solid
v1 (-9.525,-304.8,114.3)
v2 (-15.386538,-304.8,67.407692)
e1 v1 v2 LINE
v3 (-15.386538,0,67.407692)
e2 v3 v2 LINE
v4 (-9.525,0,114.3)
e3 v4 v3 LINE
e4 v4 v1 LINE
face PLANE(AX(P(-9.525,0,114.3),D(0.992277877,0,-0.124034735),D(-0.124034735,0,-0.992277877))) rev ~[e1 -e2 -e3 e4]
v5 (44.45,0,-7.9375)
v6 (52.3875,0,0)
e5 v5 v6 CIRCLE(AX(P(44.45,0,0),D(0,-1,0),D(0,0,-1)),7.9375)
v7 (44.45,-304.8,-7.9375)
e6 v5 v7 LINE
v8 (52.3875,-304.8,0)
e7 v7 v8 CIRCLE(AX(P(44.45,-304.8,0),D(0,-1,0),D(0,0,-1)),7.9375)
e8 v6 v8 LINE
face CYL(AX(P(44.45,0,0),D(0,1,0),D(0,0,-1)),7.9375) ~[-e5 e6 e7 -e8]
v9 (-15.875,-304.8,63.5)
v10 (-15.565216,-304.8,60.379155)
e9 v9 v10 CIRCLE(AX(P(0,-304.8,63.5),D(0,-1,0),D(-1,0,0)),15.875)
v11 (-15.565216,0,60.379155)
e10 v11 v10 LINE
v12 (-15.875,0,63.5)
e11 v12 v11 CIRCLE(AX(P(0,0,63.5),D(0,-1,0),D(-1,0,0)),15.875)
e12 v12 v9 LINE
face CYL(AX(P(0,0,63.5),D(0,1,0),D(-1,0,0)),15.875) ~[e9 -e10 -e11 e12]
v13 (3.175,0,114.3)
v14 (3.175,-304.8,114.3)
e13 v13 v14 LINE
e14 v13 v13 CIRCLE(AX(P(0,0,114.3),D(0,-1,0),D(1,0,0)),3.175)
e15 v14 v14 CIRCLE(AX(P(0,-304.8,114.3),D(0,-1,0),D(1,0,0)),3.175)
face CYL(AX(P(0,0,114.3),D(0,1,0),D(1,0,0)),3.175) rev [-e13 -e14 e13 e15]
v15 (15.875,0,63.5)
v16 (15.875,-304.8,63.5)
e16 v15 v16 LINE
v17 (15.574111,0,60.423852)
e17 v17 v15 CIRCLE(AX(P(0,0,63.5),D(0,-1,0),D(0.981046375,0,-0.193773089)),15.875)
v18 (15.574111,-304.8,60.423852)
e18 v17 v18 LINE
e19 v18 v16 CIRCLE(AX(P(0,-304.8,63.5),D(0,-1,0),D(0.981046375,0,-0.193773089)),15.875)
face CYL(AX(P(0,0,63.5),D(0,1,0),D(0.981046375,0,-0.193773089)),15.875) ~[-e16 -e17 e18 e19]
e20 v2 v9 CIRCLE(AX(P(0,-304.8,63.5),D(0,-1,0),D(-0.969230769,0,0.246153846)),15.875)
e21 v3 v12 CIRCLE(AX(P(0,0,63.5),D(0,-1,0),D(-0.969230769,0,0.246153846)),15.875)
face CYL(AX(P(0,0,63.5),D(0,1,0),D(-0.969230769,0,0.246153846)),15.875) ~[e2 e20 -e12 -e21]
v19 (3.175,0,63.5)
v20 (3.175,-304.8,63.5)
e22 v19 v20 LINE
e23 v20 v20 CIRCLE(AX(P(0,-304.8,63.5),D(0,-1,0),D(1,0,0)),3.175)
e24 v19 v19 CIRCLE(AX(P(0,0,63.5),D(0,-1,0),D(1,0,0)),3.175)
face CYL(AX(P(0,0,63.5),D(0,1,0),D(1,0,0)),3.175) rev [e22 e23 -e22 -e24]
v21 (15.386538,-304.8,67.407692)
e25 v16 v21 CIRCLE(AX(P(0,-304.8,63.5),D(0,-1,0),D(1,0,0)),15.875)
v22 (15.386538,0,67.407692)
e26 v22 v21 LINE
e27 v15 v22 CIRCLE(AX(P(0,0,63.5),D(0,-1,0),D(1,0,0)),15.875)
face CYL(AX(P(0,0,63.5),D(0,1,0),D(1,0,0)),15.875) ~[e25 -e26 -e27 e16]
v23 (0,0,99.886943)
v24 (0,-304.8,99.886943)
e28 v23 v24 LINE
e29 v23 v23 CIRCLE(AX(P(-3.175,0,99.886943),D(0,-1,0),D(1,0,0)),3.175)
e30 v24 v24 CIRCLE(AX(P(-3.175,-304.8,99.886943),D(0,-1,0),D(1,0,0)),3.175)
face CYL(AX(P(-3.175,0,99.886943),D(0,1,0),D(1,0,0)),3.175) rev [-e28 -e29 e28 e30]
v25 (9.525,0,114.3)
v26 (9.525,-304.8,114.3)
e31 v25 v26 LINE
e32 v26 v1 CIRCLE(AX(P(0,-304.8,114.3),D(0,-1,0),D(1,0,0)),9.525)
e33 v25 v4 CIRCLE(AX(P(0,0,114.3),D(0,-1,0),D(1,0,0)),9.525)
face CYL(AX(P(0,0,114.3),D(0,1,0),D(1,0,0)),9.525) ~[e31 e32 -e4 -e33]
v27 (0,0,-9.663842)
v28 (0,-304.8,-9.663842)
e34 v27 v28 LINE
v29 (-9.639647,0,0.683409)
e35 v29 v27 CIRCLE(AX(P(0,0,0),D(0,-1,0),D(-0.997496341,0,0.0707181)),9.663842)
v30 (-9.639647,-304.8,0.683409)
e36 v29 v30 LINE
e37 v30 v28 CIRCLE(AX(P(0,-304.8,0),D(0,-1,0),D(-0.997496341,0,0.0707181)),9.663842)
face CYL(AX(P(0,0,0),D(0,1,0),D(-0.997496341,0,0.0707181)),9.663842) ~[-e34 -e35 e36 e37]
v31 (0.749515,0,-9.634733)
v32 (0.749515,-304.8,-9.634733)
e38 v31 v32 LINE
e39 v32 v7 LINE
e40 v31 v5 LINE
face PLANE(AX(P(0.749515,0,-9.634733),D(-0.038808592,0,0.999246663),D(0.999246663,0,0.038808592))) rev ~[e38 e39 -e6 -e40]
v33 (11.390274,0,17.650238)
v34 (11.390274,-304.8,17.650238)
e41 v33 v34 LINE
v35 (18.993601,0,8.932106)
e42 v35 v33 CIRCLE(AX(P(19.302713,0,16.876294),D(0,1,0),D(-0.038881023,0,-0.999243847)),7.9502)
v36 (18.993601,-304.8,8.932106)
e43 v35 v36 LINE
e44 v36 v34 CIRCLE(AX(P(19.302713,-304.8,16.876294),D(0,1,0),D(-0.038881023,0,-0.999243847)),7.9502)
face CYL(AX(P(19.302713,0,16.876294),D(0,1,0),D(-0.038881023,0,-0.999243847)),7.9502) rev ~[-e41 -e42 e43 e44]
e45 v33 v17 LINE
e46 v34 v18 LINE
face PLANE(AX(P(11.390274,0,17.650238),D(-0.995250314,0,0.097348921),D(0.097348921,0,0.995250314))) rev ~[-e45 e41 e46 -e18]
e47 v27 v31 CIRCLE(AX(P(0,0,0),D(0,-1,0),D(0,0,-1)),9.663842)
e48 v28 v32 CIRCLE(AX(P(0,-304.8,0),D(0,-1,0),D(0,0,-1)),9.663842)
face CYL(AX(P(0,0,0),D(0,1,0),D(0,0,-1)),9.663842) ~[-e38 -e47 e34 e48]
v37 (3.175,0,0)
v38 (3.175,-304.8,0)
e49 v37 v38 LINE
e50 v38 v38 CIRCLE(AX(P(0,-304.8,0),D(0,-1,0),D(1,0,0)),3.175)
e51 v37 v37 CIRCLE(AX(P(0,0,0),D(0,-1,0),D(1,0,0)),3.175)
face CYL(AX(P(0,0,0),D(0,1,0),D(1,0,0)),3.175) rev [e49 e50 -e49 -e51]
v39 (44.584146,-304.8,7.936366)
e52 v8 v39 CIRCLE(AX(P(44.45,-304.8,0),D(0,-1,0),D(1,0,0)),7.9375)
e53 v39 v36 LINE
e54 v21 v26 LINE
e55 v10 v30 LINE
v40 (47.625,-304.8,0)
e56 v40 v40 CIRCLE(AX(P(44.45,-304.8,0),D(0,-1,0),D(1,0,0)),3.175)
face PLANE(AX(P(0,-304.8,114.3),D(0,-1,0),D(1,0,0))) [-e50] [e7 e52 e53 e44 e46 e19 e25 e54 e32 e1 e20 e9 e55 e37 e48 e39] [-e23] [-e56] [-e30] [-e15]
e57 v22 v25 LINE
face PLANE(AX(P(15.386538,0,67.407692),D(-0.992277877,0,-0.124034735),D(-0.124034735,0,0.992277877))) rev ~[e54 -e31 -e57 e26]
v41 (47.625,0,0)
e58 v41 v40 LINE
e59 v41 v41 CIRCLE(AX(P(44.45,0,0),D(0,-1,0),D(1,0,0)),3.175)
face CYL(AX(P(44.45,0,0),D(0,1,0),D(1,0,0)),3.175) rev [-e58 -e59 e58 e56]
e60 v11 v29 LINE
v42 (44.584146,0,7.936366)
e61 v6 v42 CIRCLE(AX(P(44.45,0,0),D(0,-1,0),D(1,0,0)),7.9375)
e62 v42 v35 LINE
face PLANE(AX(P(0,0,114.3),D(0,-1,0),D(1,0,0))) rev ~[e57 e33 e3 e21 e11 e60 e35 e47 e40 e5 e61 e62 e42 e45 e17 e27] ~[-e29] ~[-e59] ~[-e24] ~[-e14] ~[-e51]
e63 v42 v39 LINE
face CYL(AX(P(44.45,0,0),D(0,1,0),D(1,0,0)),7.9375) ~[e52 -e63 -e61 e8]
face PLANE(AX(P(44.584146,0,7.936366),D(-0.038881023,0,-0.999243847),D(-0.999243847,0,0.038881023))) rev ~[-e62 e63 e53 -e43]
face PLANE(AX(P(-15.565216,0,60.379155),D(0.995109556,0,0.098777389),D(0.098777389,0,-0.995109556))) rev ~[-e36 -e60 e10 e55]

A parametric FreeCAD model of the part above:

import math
import FreeCAD as App
import Part
import Sketcher
from FreeCAD import Vector
Q = App.Units.Quantity

doc = App.newDocument("Part")
params = doc.addObject("Spreadsheet::Sheet", "Params")
for row, (alias, value) in enumerate([
    ("sketch1_diameter", "0.25 in"),
    ("sketch1_radius", "0.375 in"),
    ("sketch1_radius2", "0.625 in"),
    ("sketch1_radius3", "0.3125 in"),
    ("sketch1_radius4", "0.313 in"),
    ("pad1_length", "12 in"),
], start=1):
    params.set(f"A{row}", alias)
    params.set(f"B{row}", "=" + value)
    params.setAlias(f"B{row}", alias)

body = doc.addObject("PartDesign::Body", "Body")

sketch1 = body.newObject("Sketcher::SketchObject", "Sketch")
sketch1.AttachmentSupport = (doc.getObject("XZ_Plane"), [""])
sketch1.MapMode = "FlatFace"
sketch1.addGeometry([
    Part.ArcOfCircle(Part.Circle(Vector(0, 114.3, 0), Vector(0, 0, 1), 9.525), math.radians(0), math.radians(180)),
    Part.LineSegment(Vector(-9.525, 114.3, 0), Vector(-15.386538, 67.407692, 0)),
    Part.ArcOfCircle(Part.Circle(Vector(0, 63.5, 0), Vector(0, 0, 1), 15.875), math.radians(165.749967), math.radians(180)),
    Part.ArcOfCircle(Part.Circle(Vector(0, 63.5, 0), Vector(0, 0, 1), 15.875), math.radians(180), math.radians(191.337543)),
    Part.LineSegment(Vector(-15.565216, 60.379155, 0), Vector(-9.639647, 0.683409, 0)),
    Part.ArcOfCircle(Part.Circle(Vector(0, 0, 0), Vector(0, 0, 1), 9.663842), math.radians(175.944766), math.radians(270)),
    Part.ArcOfCircle(Part.Circle(Vector(0, 0, 0), Vector(0, 0, 1), 9.663842), math.radians(-90), math.radians(-85.551746)),
    Part.LineSegment(Vector(0.749515, -9.634733, 0), Vector(44.45, -7.9375, 0)),
    Part.ArcOfCircle(Part.Circle(Vector(44.45, 0, 0), Vector(0, 0, 1), 7.9375), math.radians(-90), math.radians(0)),
    Part.ArcOfCircle(Part.Circle(Vector(44.45, 0, 0), Vector(0, 0, 1), 7.9375), math.radians(0), math.radians(89.031642)),
    Part.LineSegment(Vector(44.584146, 7.936366, 0), Vector(18.993601, 8.932106, 0)),
    Part.ArcOfCircle(Part.Circle(Vector(19.302713, 16.876294, 0), Vector(0, 0, 1), 7.9502), math.radians(174.41347), math.radians(267.77172)),
    Part.LineSegment(Vector(11.390274, 17.650238, 0), Vector(15.574111, 60.423852, 0)),
    Part.ArcOfCircle(Part.Circle(Vector(0, 63.5, 0), Vector(0, 0, 1), 15.875), math.radians(-11.17306), math.radians(0)),
    Part.ArcOfCircle(Part.Circle(Vector(0, 63.5, 0), Vector(0, 0, 1), 15.875), math.radians(0), math.radians(14.250033)),
    Part.LineSegment(Vector(15.386538, 67.407692, 0), Vector(9.525, 114.3, 0)),
    Part.Circle(Vector(0, 0, 0), Vector(0, 0, 1), 3.175),
    Part.Circle(Vector(44.45, 0, 0), Vector(0, 0, 1), 3.175),
    Part.Circle(Vector(0, 63.5, 0), Vector(0, 0, 1), 3.175),
    Part.Circle(Vector(-3.175, 99.886943, 0), Vector(0, 0, 1), 3.175),
    Part.Circle(Vector(0, 114.3, 0), Vector(0, 0, 1), 3.175),
], False)
sketch1.addConstraint([
    Sketcher.Constraint("Coincident", 0, 2, 1, 1),
    Sketcher.Constraint("Coincident", 1, 2, 2, 1),
    Sketcher.Constraint("Tangent", 2, 2, 3, 1),
    Sketcher.Constraint("Coincident", 3, 2, 4, 1),
    Sketcher.Constraint("Coincident", 4, 2, 5, 1),
    Sketcher.Constraint("Tangent", 5, 2, 6, 1),
    Sketcher.Constraint("Coincident", 6, 2, 7, 1),
    Sketcher.Constraint("Coincident", 7, 2, 8, 1),
    Sketcher.Constraint("Tangent", 8, 2, 9, 1),
    Sketcher.Constraint("Coincident", 9, 2, 10, 1),
    Sketcher.Constraint("Tangent", 10, 2, 11, 2),
    Sketcher.Constraint("Tangent", 11, 1, 12, 1),
    Sketcher.Constraint("Coincident", 12, 2, 13, 1),
    Sketcher.Constraint("Tangent", 13, 2, 14, 1),
    Sketcher.Constraint("Coincident", 14, 2, 15, 1),
    Sketcher.Constraint("Coincident", 15, 2, 0, 1),
    Sketcher.Constraint("Coincident", 5, 3, -1, 1),
    Sketcher.Constraint("Coincident", 16, 3, -1, 1),
    Sketcher.Constraint("Coincident", 13, 3, 2, 3),
    Sketcher.Constraint("Coincident", 17, 3, 8, 3),
    Sketcher.Constraint("Coincident", 18, 3, 2, 3),
    Sketcher.Constraint("Coincident", 20, 3, 0, 3),
    Sketcher.Constraint("Equal", 2, 3),
    Sketcher.Constraint("Equal", 5, 6),
    Sketcher.Constraint("Equal", 8, 9),
    Sketcher.Constraint("Equal", 3, 13),
    Sketcher.Constraint("Equal", 13, 14),
    Sketcher.Constraint("Equal", 16, 17),
    Sketcher.Constraint("Equal", 17, 18),
    Sketcher.Constraint("Equal", 18, 19),
    Sketcher.Constraint("Equal", 19, 20),
    Sketcher.Constraint("Symmetric", 2, 2, 13, 2, -2),
    Sketcher.Constraint("Symmetric", 0, 2, 15, 2, -2),
    Sketcher.Constraint("PointOnObject", 8, 3, -1),
    Sketcher.Constraint("PointOnObject", 5, 2, -2),
    Sketcher.Constraint("PointOnObject", 8, 2, -1),
    Sketcher.Constraint("Horizontal", 20, 3, 0, 2),
    Sketcher.Constraint("Horizontal", 18, 3, 2, 2),
    Sketcher.Constraint("Horizontal", 1, 2, 14, 2),
    Sketcher.Constraint("Vertical", 17, 3, 7, 2),
    Sketcher.Constraint("Diameter", 16, Q("0.25 in")),
    Sketcher.Constraint("Radius", 0, Q("0.375 in")),
    Sketcher.Constraint("Radius", 2, Q("0.625 in")),
    Sketcher.Constraint("Radius", 8, Q("0.3125 in")),
    Sketcher.Constraint("Radius", 11, Q("0.313 in")),
    Sketcher.Constraint("DistanceY", 2, 3, 0, 3, Q("2 in")),
    Sketcher.Constraint("DistanceY", -1, 1, 0, 3, Q("4.5 in")),
    Sketcher.Constraint("DistanceX", 19, 3, 15, 2, Q("0.5 in")),
    Sketcher.Constraint("DistanceX", -1, 1, 8, 3, Q("1.75 in")),
    Sketcher.Constraint("Radius", 5, Q("9.663842 mm")),
    Sketcher.Constraint("DistanceX", -1, 1, 10, 2, Q("18.993601 mm")),
    Sketcher.Constraint("Distance", 4, Q("59.98912 mm")),
    Sketcher.Constraint("Distance", 7, Q("43.733431 mm")),
    Sketcher.Constraint("Distance", 10, Q("25.609909 mm")),
    Sketcher.Constraint("DistanceX", 1, 2, -1, 1, Q("15.386538 mm")),
    Sketcher.Constraint("DistanceY", -1, 1, 4, 2, Q("0.683409 mm")),
    Sketcher.Constraint("DistanceX", -1, 1, 12, 2, Q("15.574111 mm")),
    Sketcher.Constraint("DistanceX", 4, 2, 11, 3, Q("28.942361 mm")),
    Sketcher.Constraint("DistanceY", -1, 1, 19, 3, Q("99.886943 mm")),
])
sketch1.setExpression("Constraints[40]", "Params.sketch1_diameter")
sketch1.setExpression("Constraints[41]", "Params.sketch1_radius")
sketch1.setExpression("Constraints[42]", "Params.sketch1_radius2")
sketch1.setExpression("Constraints[43]", "Params.sketch1_radius3")
sketch1.setExpression("Constraints[44]", "Params.sketch1_radius4")
pad1 = body.newObject("PartDesign::Pad", "Pad")
pad1.Profile = sketch1
pad1.setExpression("Length", "Params.pad1_length")

doc.recompute()
